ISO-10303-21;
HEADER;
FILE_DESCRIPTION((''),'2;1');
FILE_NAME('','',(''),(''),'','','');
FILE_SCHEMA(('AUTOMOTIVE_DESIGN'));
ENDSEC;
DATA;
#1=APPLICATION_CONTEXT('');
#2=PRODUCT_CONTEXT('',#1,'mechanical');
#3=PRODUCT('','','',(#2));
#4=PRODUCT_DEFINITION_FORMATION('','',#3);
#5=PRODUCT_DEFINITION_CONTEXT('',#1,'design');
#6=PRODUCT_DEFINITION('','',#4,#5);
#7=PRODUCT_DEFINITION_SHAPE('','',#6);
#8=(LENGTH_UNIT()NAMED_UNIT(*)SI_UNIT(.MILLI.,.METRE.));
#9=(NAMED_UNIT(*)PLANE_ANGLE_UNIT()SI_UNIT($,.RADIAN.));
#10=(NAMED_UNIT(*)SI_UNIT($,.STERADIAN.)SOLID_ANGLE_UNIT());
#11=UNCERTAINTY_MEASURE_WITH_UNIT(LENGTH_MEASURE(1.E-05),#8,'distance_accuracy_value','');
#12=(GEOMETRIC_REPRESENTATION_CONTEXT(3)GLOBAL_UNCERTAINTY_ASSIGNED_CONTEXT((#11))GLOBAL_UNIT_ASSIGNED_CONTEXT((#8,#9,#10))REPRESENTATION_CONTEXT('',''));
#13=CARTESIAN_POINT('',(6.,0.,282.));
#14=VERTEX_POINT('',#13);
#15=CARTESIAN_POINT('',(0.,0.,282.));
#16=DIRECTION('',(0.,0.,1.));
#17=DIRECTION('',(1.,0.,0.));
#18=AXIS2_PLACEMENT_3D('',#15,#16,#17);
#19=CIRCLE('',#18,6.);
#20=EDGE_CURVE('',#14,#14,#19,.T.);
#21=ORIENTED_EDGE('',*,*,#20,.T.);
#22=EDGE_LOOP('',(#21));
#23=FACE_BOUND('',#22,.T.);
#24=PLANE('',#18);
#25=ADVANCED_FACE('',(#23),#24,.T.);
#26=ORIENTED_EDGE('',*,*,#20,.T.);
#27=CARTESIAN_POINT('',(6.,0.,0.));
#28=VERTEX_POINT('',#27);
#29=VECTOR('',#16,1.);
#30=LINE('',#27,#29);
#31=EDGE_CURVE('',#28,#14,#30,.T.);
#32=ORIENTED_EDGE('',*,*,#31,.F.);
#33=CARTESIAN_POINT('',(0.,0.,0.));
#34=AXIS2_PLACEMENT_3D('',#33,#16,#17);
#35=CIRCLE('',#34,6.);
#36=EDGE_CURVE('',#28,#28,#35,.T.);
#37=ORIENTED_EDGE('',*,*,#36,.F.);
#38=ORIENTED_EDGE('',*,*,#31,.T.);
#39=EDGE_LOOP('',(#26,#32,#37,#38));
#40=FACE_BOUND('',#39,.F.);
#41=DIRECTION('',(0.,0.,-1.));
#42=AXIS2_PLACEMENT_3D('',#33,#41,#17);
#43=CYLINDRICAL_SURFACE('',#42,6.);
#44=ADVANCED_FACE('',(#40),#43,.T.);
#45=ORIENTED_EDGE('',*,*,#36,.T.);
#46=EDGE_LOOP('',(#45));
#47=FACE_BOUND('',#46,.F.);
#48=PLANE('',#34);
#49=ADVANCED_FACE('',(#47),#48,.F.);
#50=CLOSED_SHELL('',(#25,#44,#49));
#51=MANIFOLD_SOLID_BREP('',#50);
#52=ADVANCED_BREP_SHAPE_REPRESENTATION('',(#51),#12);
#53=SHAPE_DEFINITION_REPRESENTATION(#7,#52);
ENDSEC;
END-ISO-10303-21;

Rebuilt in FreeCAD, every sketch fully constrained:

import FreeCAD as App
import Part
import Sketcher

V = App.Vector

doc = App.newDocument("Part")
body = doc.addObject("PartDesign::Body", "Body")

sketch1 = body.newObject("Sketcher::SketchObject", "Sketch")
sketch1.AttachmentSupport = (doc.getObject("XY_Plane"), [""])
sketch1.MapMode = "FlatFace"
sketch1.addGeometry(Part.Circle(V(0, 0, 0), V(0, 0, 1), 6), False)
sketch1.addConstraint([
    Sketcher.Constraint("Coincident", 0, 3, -1, 1),
    Sketcher.Constraint("Diameter", 0, 12.0),
])
pad1 = body.newObject("PartDesign::Pad", "Pad")
pad1.Profile = sketch1
pad1.Length = 282

doc.recompute()
